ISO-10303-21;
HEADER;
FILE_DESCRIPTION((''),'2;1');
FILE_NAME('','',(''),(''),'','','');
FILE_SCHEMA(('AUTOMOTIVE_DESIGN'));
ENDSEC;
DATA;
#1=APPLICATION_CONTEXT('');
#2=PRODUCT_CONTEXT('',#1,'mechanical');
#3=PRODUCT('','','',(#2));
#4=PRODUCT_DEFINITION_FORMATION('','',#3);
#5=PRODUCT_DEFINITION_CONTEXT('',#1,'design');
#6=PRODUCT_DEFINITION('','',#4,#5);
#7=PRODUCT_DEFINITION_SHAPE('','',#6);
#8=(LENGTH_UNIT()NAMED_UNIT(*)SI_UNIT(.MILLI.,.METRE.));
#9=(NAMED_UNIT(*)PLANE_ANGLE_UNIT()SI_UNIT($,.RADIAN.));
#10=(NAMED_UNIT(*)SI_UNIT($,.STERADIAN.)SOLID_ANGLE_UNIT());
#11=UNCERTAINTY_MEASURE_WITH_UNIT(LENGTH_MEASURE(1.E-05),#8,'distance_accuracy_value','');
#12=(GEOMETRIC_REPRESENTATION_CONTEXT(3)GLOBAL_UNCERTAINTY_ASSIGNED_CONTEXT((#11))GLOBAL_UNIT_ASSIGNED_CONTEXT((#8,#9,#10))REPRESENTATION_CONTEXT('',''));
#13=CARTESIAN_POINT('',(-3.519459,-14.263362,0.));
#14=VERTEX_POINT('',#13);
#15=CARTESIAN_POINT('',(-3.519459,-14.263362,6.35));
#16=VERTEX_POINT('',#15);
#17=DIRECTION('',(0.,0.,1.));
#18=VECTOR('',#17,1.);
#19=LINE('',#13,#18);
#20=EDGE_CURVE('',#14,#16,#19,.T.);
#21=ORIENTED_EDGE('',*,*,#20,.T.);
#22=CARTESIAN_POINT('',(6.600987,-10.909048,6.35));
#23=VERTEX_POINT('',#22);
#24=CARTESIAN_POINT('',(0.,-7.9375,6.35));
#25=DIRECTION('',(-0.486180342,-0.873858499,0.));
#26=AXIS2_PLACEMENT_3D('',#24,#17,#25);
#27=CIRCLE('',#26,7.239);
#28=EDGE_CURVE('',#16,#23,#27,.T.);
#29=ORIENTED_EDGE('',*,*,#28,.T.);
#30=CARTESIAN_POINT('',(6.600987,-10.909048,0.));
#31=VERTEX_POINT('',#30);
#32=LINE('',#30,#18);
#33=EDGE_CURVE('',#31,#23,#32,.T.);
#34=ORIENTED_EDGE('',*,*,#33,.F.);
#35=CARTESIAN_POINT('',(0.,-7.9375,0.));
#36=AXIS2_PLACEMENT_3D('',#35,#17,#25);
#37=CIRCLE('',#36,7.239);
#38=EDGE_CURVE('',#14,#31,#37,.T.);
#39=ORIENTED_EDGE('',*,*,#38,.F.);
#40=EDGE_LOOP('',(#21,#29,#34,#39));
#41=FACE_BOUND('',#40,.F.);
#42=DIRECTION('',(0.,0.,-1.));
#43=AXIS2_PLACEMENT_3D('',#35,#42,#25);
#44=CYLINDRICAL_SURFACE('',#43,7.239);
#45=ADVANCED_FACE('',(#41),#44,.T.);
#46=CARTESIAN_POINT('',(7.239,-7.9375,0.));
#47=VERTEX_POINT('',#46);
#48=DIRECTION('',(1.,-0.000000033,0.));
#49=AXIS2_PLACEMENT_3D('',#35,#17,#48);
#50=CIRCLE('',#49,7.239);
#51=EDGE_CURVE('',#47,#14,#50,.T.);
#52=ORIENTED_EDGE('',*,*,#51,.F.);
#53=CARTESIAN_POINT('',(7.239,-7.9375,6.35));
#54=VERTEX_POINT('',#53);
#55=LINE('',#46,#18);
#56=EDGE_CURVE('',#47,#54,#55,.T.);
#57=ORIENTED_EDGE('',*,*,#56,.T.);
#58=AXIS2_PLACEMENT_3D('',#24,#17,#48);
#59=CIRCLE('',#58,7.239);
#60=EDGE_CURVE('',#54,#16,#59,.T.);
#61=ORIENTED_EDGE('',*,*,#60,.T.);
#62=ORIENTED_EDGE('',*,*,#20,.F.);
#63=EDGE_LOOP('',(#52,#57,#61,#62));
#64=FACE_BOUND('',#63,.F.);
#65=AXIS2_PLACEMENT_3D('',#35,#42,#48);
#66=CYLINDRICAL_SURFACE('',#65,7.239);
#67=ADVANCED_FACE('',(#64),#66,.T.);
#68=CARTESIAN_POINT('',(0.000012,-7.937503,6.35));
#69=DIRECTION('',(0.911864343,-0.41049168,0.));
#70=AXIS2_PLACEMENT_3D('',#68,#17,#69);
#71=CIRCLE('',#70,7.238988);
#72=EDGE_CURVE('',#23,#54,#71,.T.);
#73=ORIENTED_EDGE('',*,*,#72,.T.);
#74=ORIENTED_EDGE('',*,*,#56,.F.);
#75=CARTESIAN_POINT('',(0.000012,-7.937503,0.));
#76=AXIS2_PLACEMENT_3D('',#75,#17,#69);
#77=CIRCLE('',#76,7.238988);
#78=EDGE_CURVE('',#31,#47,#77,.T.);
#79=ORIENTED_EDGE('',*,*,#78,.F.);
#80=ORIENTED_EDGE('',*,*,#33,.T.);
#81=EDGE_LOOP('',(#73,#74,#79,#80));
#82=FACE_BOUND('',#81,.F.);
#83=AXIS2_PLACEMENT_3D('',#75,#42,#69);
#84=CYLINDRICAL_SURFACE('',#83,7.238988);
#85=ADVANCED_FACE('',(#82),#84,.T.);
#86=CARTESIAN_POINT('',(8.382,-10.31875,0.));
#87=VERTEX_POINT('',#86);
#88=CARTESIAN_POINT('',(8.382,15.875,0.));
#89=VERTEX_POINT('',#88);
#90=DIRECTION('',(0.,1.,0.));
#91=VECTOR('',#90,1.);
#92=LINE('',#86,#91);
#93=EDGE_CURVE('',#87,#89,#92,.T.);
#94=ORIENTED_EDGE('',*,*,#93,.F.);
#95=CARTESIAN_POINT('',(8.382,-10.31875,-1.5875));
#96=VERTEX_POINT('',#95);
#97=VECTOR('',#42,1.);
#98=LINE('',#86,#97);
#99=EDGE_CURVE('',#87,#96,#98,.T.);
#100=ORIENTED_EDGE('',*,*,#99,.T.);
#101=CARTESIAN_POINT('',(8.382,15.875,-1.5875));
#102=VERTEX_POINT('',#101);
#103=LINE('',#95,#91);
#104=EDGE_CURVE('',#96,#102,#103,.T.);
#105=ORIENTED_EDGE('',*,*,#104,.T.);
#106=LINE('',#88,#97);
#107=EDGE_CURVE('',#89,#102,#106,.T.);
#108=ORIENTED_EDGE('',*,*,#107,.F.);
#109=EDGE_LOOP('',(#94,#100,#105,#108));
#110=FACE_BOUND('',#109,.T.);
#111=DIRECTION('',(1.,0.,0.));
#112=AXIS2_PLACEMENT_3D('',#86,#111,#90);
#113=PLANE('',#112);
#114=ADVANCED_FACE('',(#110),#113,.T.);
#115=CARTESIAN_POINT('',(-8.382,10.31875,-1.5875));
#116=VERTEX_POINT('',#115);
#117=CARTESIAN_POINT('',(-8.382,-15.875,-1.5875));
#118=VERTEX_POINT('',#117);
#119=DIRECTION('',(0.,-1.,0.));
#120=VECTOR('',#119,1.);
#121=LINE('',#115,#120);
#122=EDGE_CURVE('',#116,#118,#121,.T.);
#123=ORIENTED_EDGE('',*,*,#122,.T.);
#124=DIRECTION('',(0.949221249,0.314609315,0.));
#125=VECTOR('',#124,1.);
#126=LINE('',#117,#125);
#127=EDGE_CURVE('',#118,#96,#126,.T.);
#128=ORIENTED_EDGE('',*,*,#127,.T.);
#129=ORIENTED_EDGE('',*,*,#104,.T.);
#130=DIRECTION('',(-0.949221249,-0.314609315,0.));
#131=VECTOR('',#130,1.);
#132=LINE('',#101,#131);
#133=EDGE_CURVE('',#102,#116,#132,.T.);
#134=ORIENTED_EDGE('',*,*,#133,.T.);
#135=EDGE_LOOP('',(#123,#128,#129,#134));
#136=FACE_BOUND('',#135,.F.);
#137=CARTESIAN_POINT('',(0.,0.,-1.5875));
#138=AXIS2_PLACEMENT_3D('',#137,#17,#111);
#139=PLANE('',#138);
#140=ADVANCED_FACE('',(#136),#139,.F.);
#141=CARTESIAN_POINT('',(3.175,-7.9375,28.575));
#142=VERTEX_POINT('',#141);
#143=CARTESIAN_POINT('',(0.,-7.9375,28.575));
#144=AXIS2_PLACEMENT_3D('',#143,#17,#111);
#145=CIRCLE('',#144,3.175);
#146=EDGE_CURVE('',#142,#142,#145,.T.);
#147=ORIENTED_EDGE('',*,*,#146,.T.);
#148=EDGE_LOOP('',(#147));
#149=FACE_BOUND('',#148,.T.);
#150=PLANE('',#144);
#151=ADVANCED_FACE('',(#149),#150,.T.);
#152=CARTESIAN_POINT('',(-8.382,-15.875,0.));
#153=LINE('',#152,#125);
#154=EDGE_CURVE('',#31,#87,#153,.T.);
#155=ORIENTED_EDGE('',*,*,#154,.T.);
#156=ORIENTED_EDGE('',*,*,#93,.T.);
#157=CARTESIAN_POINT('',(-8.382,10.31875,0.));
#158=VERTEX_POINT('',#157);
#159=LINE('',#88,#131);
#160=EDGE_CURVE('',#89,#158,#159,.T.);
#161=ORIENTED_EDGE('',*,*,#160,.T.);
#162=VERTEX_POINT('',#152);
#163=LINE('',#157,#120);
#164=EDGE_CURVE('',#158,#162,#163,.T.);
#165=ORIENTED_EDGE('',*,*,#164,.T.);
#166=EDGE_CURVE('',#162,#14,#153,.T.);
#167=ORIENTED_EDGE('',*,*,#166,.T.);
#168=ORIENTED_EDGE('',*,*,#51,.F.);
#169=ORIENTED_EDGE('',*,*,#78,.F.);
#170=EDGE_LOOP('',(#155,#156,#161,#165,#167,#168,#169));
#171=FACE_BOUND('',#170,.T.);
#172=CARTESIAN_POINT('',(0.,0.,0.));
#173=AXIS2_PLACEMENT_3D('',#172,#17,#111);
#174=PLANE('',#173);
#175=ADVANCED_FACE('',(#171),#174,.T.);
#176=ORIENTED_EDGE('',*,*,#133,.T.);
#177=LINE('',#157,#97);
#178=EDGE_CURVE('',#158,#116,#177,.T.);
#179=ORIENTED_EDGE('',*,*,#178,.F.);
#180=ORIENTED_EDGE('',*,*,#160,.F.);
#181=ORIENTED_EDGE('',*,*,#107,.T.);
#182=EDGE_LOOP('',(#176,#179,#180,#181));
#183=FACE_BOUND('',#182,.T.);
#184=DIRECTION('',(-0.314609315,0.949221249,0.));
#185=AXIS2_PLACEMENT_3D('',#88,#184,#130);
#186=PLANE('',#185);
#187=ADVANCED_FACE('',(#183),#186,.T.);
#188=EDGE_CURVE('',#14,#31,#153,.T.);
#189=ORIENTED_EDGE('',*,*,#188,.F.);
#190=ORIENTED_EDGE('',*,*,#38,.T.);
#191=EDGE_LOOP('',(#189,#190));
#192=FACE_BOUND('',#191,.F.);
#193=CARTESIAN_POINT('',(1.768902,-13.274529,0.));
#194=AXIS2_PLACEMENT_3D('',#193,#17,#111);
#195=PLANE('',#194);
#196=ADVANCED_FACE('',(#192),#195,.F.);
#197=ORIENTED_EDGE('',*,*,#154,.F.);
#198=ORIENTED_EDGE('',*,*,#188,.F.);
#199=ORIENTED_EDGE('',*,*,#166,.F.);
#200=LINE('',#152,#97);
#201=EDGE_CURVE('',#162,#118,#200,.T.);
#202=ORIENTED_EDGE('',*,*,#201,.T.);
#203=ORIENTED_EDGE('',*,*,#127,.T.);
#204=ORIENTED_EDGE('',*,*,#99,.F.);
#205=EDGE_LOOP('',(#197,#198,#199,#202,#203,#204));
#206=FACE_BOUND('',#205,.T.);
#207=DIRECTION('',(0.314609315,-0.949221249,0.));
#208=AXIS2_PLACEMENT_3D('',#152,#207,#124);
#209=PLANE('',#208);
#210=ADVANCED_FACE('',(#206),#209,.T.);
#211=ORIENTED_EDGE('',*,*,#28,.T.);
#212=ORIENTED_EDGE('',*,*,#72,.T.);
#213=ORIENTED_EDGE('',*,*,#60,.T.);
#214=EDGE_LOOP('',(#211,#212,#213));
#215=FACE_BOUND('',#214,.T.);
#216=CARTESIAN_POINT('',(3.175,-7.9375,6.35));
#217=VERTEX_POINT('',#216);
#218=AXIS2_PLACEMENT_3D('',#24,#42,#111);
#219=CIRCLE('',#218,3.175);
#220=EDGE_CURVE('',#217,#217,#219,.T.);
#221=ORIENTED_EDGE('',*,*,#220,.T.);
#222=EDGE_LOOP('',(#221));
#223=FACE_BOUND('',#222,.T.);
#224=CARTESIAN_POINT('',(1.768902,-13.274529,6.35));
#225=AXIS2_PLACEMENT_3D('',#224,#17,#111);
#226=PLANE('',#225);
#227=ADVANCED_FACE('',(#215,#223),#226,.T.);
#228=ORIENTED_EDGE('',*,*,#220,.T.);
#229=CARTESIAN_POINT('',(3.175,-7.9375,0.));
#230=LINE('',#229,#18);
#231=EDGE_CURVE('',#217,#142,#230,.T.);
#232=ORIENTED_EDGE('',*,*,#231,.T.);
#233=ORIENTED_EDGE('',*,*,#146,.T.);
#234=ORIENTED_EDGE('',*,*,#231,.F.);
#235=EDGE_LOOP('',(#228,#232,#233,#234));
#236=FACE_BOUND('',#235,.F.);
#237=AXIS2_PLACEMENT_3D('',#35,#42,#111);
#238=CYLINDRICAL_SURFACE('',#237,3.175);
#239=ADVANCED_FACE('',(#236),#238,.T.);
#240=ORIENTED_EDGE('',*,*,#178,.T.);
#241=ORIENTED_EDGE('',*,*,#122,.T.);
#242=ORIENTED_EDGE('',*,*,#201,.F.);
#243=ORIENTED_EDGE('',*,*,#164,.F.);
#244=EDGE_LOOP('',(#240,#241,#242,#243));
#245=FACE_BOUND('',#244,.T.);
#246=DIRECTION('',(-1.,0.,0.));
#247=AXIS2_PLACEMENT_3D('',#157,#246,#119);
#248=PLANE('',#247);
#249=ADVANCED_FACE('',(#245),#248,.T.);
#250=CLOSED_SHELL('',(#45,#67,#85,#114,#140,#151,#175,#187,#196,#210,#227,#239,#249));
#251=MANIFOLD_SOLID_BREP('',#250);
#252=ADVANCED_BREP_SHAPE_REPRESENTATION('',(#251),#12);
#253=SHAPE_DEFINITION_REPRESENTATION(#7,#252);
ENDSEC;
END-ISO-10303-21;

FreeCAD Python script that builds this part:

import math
import FreeCAD as App
import Part
import Sketcher

V = App.Vector
Q = App.Units.Quantity

doc = App.newDocument("Part")
body = doc.addObject("PartDesign::Body", "Body")

# Sketch on XY plane
sketch1 = body.newObject("Sketcher::SketchObject", "Sketch")
sketch1.AttachmentSupport = (doc.getObject("XY_Plane"), [""])
sketch1.MapMode = "FlatFace"
sketch1.addGeometry([
    Part.LineSegment(V(8, -10, 0), V(8, 16, 0)),
    Part.LineSegment(V(8, 16, 0), V(-8, 10, 0)),
    Part.LineSegment(V(-8, 10, 0), V(-8, -16, 0)),
    Part.LineSegment(V(-8, -16, 0), V(8, -10, 0)),
], False)
sketch1.addConstraint([
    Sketcher.Constraint("Coincident", 0, 2, 1, 1),
    Sketcher.Constraint("Coincident", 1, 2, 2, 1),
    Sketcher.Constraint("Coincident", 2, 2, 3, 1),
    Sketcher.Constraint("Coincident", 3, 2, 0, 1),
    Sketcher.Constraint("Vertical", 0),
    Sketcher.Constraint("Vertical", 2),
    Sketcher.Constraint("Symmetric", 0, 2, 2, 2, -1, 1),
    Sketcher.Constraint("Parallel", 1, 3),
    Sketcher.Constraint("DistanceY", 0, 1, 0, 2, Q("1.03125 in")),
    Sketcher.Constraint("DistanceX", -1, 1, 0, 2, Q("0.33 in")),
    Sketcher.Constraint("DistanceY", 2, 2, 0, 2, Q("1.25 in")),
])
pad1 = body.newObject("PartDesign::Pad", "Pad")
pad1.Profile = sketch1
pad1.Length = Q("0.0625 in")
pad1.Reversed = True

# Sketch on XY plane
sketch2 = body.newObject("Sketcher::SketchObject", "Sketch001")
sketch2.AttachmentSupport = (doc.getObject("XY_Plane"), [""])
sketch2.MapMode = "FlatFace"
sketch2.addGeometry([
    Part.ArcOfCircle(Part.Circle(V(0, -7.9, 0), V(0, 0, 1), 7.2), math.radians(-119), math.radians(-24)),
    Part.ArcOfCircle(Part.Circle(V(0, -7.9, 0), V(0, 0, 1), 7.2), math.radians(-24), math.radians(0)),
    Part.ArcOfCircle(Part.Circle(V(0, -7.9, 0), V(0, 0, 1), 7.2), math.radians(0), math.radians(241)),
], False)
sketch2.addConstraint([
    Sketcher.Constraint("Tangent", 0, 2, 1, 1),
    Sketcher.Constraint("Tangent", 1, 2, 2, 1),
    Sketcher.Constraint("Tangent", 2, 2, 0, 1),
    Sketcher.Constraint("PointOnObject", 0, 3, -2),
    Sketcher.Constraint("Horizontal", 2, 3, 1, 2),
    Sketcher.Constraint("Radius", 0, Q("0.285 in")),
    Sketcher.Constraint("DistanceY", 0, 3, -1, 1, Q("0.3125 in")),
    Sketcher.Constraint("DistanceX", 2, 2, -1, 1, 3.519459),
    Sketcher.Constraint("DistanceY", 0, 2, 2, 3, 2.971548),
])
pad2 = body.newObject("PartDesign::Pad", "Pad001")
pad2.Profile = sketch2
pad2.Length = Q("0.25 in")

# Sketch on XY plane
sketch3 = body.newObject("Sketcher::SketchObject", "Sketch002")
sketch3.AttachmentSupport = (doc.getObject("XY_Plane"), [""])
sketch3.MapMode = "FlatFace"
sketch3.addGeometry(Part.Circle(V(0, -7.9, 0), V(0, 0, 1), 3.2), False)
sketch3.addConstraint([
    Sketcher.Constraint("PointOnObject", 0, 3, -2),
    Sketcher.Constraint("Diameter", 0, Q("0.25 in")),
    Sketcher.Constraint("DistanceY", 0, 3, -1, 1, Q("0.3125 in")),
])
pad3 = body.newObject("PartDesign::Pad", "Pad002")
pad3.Profile = sketch3
pad3.Length = Q("1.125 in")

doc.recompute()
